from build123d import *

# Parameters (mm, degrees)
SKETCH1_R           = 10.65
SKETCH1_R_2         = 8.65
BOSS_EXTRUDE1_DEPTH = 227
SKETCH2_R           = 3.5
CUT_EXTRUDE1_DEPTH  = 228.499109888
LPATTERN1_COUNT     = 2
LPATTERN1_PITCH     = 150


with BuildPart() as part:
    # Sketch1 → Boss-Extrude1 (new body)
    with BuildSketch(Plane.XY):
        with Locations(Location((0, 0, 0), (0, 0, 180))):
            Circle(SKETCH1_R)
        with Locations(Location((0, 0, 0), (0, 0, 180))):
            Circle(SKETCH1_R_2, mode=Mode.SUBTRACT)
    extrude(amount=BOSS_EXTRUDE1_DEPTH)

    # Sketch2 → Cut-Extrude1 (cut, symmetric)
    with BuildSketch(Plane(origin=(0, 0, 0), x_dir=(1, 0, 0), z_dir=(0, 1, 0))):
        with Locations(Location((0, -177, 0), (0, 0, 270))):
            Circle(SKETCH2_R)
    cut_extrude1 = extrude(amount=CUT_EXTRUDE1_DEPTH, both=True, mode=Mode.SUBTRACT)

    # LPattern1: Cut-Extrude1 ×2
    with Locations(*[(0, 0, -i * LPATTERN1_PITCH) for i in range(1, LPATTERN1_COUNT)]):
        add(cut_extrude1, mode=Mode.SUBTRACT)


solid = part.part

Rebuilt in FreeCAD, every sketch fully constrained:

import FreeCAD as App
import Part
import Sketcher
from FreeCAD import Vector
Q = App.Units.Quantity

doc = App.newDocument("Part")
body = doc.addObject("PartDesign::Body", "Body")

# Sketch on XY plane
sketch1 = body.newObject("Sketcher::SketchObject", "Sketch")
sketch1.AttachmentSupport = (doc.getObject("XY_Plane"), [""])
sketch1.MapMode = "FlatFace"
sketch1.addGeometry([
    Part.Circle(Vector(0, 0, 0), Vector(0, 0, 1), 11),
    Part.Circle(Vector(0, 0, 0), Vector(0, 0, 1), 9),
], False)
sketch1.addConstraint([
    Sketcher.Constraint("Coincident", 0, 3, -1, 1),
    Sketcher.Constraint("Coincident", 1, 3, -1, 1),
    Sketcher.Constraint("Diameter", 0, Q("21.3 mm")),
    Sketcher.Constraint("Diameter", 1, Q("17.3 mm")),
])
pad1 = body.newObject("PartDesign::Pad", "Pad")
pad1.Profile = sketch1
pad1.Length = 227

# Sketch on XZ plane
sketch2 = body.newObject("Sketcher::SketchObject", "Sketch001")
sketch2.AttachmentSupport = (doc.getObject("XZ_Plane"), [""])
sketch2.MapMode = "FlatFace"
sketch2.addGeometry(Part.Circle(Vector(0, 177, 0), Vector(0, 0, 1), 3.5), False)
sketch2.addConstraint([
    Sketcher.Constraint("PointOnObject", 0, 3, -2),
    Sketcher.Constraint("Diameter", 0, Q("7 mm")),
    Sketcher.Constraint("DistanceY", -1, 1, 0, 3, Q("177 mm")),
])
pocket1 = body.newObject("PartDesign::Pocket", "Pocket")
pocket1.Profile = sketch2
pocket1.Length = 456.99822
pocket1.Midplane = True
doc.recompute()

linearpattern = body.newObject("PartDesign::LinearPattern", "LinearPattern")
linearpattern.Originals = [pocket1]
linearpattern.Direction = (doc.getObject("Z_Axis"), [""])
linearpattern.Mode = "offset"
linearpattern.Offset = 150
linearpattern.Occurrences = 2
linearpattern.Reversed = True
body.Tip = linearpattern

doc.recompute()
